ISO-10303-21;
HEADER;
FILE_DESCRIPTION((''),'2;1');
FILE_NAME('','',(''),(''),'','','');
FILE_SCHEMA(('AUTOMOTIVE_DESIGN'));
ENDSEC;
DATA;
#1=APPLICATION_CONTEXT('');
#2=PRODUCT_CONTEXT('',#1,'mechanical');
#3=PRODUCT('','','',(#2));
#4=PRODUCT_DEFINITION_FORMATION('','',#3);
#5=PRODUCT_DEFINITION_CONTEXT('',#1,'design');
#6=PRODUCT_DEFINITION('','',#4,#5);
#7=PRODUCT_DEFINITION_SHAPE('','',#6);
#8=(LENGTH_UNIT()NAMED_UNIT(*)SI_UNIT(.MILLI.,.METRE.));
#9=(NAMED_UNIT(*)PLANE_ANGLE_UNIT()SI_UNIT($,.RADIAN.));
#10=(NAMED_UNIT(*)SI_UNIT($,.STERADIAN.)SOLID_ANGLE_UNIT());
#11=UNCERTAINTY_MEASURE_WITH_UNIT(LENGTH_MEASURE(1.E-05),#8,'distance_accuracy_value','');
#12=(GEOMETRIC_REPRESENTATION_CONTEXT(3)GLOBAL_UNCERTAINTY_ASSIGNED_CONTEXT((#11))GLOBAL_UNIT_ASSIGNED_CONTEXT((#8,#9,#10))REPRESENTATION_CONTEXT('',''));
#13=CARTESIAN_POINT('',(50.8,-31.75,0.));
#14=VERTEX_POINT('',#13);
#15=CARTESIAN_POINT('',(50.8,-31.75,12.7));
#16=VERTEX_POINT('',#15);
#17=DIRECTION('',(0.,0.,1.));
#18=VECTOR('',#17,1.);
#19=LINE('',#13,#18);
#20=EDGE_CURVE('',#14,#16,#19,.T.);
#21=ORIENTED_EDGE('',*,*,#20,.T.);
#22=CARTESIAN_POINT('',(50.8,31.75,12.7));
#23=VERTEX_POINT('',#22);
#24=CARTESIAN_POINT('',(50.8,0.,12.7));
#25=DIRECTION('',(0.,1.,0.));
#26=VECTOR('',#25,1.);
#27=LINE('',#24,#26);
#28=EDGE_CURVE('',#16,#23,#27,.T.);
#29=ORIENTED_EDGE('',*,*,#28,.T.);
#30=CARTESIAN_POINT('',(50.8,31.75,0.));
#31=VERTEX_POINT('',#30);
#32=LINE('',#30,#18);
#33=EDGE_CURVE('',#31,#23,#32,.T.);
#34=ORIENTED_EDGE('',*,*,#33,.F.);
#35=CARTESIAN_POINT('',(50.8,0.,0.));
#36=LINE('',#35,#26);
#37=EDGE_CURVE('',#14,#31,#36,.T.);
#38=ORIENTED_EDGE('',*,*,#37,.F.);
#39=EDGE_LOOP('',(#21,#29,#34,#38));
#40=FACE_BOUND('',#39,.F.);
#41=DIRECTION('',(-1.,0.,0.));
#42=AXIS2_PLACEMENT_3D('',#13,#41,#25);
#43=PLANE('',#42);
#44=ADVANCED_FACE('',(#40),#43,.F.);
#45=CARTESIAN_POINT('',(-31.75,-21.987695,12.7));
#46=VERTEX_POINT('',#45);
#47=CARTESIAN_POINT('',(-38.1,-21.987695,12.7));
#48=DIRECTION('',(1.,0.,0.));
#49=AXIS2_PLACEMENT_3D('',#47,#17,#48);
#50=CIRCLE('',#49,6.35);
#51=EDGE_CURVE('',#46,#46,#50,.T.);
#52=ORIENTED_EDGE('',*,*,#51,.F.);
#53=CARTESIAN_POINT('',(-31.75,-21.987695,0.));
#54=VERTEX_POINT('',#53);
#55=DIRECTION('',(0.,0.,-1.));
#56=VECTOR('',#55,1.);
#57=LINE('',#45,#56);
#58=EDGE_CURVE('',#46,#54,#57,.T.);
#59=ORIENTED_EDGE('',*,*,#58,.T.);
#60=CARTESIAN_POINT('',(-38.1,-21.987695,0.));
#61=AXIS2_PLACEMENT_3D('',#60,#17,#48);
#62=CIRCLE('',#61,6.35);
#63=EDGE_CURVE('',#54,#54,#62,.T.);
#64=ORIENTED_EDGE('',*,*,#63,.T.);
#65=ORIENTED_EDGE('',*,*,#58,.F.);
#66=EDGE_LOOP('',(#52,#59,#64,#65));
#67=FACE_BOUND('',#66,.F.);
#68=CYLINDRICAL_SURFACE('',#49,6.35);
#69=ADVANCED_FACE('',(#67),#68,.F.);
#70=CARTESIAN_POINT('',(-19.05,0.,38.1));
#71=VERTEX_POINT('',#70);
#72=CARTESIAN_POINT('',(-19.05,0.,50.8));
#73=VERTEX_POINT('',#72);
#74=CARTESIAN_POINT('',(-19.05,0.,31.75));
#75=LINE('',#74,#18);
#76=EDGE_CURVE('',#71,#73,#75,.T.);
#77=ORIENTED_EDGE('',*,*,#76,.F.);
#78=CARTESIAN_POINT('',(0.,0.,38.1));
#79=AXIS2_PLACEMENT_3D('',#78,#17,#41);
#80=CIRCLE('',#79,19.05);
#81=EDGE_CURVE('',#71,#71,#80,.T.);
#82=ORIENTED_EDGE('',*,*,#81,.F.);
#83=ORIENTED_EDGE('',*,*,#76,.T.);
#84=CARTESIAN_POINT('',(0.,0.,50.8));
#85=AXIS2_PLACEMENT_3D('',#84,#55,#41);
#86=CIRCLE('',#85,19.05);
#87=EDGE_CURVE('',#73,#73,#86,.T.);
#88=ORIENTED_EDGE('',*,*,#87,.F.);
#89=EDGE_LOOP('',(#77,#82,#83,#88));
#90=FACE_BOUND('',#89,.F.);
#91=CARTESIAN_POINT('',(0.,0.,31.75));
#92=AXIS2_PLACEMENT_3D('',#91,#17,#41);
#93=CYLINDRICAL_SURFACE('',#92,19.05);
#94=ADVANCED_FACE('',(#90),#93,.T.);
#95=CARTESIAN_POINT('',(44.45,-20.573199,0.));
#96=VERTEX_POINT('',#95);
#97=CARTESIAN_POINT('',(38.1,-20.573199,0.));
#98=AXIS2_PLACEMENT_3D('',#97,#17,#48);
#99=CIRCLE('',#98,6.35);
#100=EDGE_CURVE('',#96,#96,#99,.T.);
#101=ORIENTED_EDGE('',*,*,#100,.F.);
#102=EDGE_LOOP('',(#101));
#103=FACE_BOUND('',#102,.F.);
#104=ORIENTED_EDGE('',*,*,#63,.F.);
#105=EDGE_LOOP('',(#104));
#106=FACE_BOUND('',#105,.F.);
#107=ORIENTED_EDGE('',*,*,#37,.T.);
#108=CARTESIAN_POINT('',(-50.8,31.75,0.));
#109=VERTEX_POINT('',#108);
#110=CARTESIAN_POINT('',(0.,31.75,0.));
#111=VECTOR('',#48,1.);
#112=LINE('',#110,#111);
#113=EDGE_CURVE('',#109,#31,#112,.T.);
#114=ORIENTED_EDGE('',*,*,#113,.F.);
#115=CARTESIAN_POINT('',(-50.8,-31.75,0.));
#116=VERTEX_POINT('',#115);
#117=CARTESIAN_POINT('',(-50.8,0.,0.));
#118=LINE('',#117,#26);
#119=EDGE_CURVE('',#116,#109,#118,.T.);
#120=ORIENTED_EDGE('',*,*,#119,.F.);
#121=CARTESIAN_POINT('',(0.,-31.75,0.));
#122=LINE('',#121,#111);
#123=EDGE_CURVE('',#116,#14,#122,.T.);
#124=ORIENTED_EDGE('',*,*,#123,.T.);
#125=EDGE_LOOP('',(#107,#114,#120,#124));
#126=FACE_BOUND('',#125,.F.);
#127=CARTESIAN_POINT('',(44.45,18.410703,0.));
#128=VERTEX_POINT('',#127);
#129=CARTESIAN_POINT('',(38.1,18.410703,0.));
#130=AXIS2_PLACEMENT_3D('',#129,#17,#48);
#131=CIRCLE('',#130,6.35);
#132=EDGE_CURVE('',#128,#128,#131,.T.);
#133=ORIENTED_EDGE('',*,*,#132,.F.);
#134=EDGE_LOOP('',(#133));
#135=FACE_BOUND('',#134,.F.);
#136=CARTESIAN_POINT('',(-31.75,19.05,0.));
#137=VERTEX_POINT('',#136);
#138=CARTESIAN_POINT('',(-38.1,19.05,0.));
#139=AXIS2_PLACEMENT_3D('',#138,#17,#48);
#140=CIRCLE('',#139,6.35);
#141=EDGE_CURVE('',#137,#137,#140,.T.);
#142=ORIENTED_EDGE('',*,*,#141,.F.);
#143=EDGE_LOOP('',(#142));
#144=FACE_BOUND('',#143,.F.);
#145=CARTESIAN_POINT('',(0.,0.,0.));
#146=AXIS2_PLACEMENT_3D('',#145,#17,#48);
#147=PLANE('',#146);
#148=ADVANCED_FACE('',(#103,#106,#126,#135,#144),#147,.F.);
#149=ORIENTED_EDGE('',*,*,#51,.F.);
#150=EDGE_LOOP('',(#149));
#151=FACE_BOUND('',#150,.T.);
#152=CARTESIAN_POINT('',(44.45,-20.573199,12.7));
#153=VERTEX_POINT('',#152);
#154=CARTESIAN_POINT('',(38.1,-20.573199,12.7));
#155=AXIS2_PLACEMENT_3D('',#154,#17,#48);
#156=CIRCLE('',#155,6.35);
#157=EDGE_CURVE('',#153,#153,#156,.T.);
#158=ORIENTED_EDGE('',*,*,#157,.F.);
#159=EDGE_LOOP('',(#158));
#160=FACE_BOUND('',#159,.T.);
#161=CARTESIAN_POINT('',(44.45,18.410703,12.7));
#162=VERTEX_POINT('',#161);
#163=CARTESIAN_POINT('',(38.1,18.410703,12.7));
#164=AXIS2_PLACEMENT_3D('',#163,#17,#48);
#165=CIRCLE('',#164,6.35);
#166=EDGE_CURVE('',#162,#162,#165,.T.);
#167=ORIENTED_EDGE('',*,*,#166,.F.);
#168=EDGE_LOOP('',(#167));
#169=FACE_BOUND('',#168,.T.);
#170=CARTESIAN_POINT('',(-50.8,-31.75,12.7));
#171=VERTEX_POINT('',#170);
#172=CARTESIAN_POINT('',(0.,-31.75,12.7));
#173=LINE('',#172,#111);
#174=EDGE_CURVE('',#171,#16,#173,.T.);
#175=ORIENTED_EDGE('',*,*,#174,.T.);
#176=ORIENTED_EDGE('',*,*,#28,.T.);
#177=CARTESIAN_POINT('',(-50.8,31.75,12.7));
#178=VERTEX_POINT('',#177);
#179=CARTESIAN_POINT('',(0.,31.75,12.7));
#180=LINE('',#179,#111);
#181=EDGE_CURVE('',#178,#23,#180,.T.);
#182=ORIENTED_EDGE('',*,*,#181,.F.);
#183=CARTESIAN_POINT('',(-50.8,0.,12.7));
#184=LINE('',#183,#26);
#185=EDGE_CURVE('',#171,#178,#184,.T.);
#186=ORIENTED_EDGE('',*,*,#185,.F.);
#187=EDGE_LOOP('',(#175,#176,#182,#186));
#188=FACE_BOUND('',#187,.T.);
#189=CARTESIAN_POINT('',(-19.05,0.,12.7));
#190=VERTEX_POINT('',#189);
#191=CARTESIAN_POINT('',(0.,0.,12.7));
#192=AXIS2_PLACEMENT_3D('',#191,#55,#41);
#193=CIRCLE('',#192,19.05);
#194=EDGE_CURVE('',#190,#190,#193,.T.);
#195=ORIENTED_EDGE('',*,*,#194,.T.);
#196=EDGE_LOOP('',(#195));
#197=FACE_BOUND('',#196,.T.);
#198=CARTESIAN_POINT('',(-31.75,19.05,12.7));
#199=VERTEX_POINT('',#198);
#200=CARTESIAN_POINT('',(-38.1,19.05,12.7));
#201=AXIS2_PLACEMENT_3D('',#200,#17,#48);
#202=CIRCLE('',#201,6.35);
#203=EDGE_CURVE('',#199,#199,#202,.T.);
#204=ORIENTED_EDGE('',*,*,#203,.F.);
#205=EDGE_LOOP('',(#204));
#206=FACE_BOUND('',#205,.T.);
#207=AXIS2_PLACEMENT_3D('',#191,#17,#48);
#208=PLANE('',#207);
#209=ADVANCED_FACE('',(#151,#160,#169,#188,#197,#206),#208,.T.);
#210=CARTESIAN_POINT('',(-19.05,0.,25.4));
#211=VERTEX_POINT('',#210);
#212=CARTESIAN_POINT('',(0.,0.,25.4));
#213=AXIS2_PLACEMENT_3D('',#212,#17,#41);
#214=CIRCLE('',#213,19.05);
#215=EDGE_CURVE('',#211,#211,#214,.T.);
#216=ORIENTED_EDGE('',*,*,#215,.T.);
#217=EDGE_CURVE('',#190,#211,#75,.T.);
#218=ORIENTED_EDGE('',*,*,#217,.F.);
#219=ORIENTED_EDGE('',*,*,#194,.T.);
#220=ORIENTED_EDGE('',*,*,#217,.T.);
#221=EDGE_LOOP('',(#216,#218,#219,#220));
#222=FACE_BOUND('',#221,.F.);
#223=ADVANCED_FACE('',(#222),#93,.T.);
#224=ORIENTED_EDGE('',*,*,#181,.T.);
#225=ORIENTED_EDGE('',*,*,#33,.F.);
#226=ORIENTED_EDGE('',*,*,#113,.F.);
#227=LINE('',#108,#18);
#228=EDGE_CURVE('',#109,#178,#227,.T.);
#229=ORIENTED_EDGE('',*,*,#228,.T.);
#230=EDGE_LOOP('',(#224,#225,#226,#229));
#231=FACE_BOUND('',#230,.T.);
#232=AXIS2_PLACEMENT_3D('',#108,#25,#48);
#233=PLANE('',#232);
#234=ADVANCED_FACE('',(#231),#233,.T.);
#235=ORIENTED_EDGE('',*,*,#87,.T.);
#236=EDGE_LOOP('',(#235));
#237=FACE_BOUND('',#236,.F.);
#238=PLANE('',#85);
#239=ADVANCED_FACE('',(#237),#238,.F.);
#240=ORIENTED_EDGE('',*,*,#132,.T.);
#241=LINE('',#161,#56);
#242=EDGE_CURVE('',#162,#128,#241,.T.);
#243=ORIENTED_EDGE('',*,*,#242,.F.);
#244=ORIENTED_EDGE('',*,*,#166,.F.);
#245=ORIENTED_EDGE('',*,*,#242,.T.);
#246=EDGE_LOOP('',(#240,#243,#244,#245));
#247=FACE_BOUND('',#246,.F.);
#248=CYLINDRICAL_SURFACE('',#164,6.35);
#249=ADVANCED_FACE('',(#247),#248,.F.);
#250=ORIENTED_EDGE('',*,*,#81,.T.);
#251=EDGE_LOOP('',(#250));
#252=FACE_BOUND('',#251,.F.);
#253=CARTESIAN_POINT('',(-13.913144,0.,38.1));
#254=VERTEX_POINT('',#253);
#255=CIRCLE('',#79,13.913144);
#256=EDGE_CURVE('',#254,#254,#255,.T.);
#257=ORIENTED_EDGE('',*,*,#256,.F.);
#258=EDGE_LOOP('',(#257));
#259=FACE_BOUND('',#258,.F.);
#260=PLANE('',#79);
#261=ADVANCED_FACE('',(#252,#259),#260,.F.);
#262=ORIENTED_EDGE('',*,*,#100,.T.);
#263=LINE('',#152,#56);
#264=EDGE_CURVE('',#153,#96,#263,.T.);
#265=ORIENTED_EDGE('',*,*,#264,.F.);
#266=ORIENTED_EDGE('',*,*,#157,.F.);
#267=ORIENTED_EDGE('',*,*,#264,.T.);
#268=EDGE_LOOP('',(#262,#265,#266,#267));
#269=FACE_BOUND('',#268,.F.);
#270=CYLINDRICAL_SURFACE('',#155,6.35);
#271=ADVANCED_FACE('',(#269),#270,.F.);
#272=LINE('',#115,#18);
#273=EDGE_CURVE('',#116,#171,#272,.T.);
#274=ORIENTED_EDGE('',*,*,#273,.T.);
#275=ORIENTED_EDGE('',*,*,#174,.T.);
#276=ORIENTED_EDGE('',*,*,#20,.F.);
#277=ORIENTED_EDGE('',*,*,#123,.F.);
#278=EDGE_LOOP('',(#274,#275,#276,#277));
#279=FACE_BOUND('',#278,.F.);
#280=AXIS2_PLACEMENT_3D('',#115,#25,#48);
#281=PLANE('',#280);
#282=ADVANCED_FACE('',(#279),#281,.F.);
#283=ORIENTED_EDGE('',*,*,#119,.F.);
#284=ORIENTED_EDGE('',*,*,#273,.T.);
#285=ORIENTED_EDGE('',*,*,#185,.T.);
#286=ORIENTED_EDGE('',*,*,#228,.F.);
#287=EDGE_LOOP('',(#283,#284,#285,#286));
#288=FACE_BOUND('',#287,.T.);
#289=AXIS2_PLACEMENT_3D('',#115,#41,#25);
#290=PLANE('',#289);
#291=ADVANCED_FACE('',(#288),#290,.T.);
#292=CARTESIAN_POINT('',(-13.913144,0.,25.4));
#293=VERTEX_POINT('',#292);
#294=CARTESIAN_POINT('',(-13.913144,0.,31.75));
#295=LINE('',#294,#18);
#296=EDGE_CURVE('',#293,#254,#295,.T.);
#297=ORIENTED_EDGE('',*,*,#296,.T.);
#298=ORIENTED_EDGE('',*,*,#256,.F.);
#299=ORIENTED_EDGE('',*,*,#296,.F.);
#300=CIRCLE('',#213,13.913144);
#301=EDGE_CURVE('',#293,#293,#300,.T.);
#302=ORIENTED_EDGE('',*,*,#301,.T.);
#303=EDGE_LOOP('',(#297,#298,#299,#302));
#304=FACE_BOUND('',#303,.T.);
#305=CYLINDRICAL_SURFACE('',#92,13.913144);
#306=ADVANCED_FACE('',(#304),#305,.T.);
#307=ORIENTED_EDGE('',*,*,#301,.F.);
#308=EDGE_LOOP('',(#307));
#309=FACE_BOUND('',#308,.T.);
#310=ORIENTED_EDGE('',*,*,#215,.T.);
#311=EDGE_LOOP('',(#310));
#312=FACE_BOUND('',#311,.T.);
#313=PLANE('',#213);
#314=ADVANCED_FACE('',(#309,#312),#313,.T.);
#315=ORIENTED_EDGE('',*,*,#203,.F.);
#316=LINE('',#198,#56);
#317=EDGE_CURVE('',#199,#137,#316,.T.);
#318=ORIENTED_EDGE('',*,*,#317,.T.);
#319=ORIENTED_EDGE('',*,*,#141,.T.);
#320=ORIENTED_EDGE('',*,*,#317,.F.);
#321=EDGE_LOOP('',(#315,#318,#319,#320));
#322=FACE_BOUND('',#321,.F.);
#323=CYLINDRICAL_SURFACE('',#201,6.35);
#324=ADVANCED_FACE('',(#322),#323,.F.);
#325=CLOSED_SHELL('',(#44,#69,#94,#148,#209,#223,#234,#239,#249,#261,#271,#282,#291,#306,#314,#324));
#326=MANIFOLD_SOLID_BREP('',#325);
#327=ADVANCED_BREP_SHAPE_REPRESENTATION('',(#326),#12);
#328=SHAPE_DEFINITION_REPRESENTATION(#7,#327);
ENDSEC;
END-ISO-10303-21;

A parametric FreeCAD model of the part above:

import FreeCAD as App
import Part
import Sketcher

V = App.Vector
Q = App.Units.Quantity

doc = App.newDocument("Part")
body = doc.addObject("PartDesign::Body", "Body")

sketch1 = body.newObject("Sketcher::SketchObject", "Sketch")
sketch1.AttachmentSupport = (doc.getObject("XY_Plane"), [""])
sketch1.MapMode = "FlatFace"
sketch1.addGeometry([
    Part.LineSegment(V(-51, 32, 0), V(-51, -32, 0)),
    Part.LineSegment(V(-51, -32, 0), V(51, -32, 0)),
    Part.LineSegment(V(51, -32, 0), V(51, 32, 0)),
    Part.LineSegment(V(51, 32, 0), V(-51, 32, 0)),
], False)
sketch1.addConstraint([
    Sketcher.Constraint("Coincident", 0, 2, 1, 1),
    Sketcher.Constraint("Coincident", 1, 2, 2, 1),
    Sketcher.Constraint("Coincident", 2, 2, 3, 1),
    Sketcher.Constraint("Coincident", 3, 2, 0, 1),
    Sketcher.Constraint("Vertical", 0),
    Sketcher.Constraint("Horizontal", 1),
    Sketcher.Constraint("Vertical", 2),
    Sketcher.Constraint("Horizontal", 3),
    Sketcher.Constraint("Symmetric", 0, 2, 2, 2, -1, 1),
    Sketcher.Constraint("DistanceX", 1, 1, 1, 2, Q("4 in")),
    Sketcher.Constraint("DistanceY", 0, 2, 0, 1, Q("2.5 in")),
])
pad1 = body.newObject("PartDesign::Pad", "Pad")
pad1.Profile = sketch1
pad1.Length = Q("0.5 in")

sketch2 = body.newObject("Sketcher::SketchObject", "Sketch001")
sketch2.AttachmentSupport = (doc.getObject("XY_Plane"), [""])
sketch2.MapMode = "FlatFace"
sketch2.AttachmentOffset = App.Placement(V(0, 0, 0.5 * 25.4), App.Rotation())
sketch2.addGeometry([
    Part.Circle(V(-38, 19, 0), V(0, 0, 1), 6),
    Part.Circle(V(-38, -22, 0), V(0, 0, 1), 6),
    Part.Circle(V(38, 18, 0), V(0, 0, 1), 6),
    Part.Circle(V(38, -21, 0), V(0, 0, 1), 6),
], False)
sketch2.addConstraint([
    Sketcher.Constraint("Equal", 0, 1),
    Sketcher.Constraint("Equal", 1, 2),
    Sketcher.Constraint("Equal", 2, 3),
    Sketcher.Constraint("Vertical", 0, 3, 1, 3),
    Sketcher.Constraint("Vertical", 2, 3, 3, 3),
    Sketcher.Constraint("Diameter", 0, Q("0.5 in")),
    Sketcher.Constraint("DistanceX", 0, 3, 2, 3, Q("3 in")),
    Sketcher.Constraint("DistanceX", 0, 3, -1, 1, Q("1.5 in")),
    Sketcher.Constraint("DistanceY", -1, 1, 0, 3, Q("0.75 in")),
    Sketcher.Constraint("DistanceY", 3, 3, -1, 1, 20.573199),
    Sketcher.Constraint("DistanceY", 1, 3, -1, 1, 21.987695),
    Sketcher.Constraint("DistanceY", -1, 1, 2, 3, 18.410703),
])
pocket1 = body.newObject("PartDesign::Pocket", "Pocket")
pocket1.Profile = sketch2
pocket1.Type = "ThroughAll"

sketch3 = body.newObject("Sketcher::SketchObject", "Sketch002")
sketch3.AttachmentSupport = (doc.getObject("XZ_Plane"), [""])
sketch3.MapMode = "FlatFace"
sketch3.addGeometry([
    Part.LineSegment(V(-19, 51, 0), V(-19, 13, 0)),
    Part.LineSegment(V(-19, 13, 0), V(0, 13, 0)),
    Part.LineSegment(V(0, 13, 0), V(0, 51, 0)),
    Part.LineSegment(V(0, 51, 0), V(-19, 51, 0)),
], False)
sketch3.addConstraint([
    Sketcher.Constraint("Coincident", 0, 2, 1, 1),
    Sketcher.Constraint("Coincident", 1, 2, 2, 1),
    Sketcher.Constraint("Coincident", 2, 2, 3, 1),
    Sketcher.Constraint("Coincident", 3, 2, 0, 1),
    Sketcher.Constraint("Vertical", 0),
    Sketcher.Constraint("Horizontal", 1),
    Sketcher.Constraint("Vertical", 2),
    Sketcher.Constraint("Horizontal", 3),
    Sketcher.Constraint("PointOnObject", 1, 2, -2),
    Sketcher.Constraint("DistanceY", 0, 2, 0, 1, Q("1.5 in")),
    Sketcher.Constraint("DistanceY", -1, 1, 2, 2, Q("2 in")),
    Sketcher.Constraint("DistanceX", 1, 1, 1, 2, Q("0.75 in")),
])
revolution = body.newObject("PartDesign::Revolution", "Revolution")
revolution.Profile = sketch3
revolution.ReferenceAxis = (sketch3, ["V_Axis"])
revolution.Angle = 360

sketch4 = body.newObject("Sketcher::SketchObject", "Sketch003")
sketch4.AttachmentSupport = (doc.getObject("XZ_Plane"), [""])
sketch4.MapMode = "FlatFace"
sketch4.addGeometry([
    Part.LineSegment(V(-26, 38, 0), V(-26, 25, 0)),
    Part.LineSegment(V(-26, 25, 0), V(-14, 25, 0)),
    Part.LineSegment(V(-14, 25, 0), V(-14, 38, 0)),
    Part.LineSegment(V(-14, 38, 0), V(-26, 38, 0)),
], False)
sketch4.addConstraint([
    Sketcher.Constraint("Coincident", 0, 2, 1, 1),
    Sketcher.Constraint("Coincident", 1, 2, 2, 1),
    Sketcher.Constraint("Coincident", 2, 2, 3, 1),
    Sketcher.Constraint("Coincident", 3, 2, 0, 1),
    Sketcher.Constraint("Vertical", 0),
    Sketcher.Constraint("Horizontal", 1),
    Sketcher.Constraint("Vertical", 2),
    Sketcher.Constraint("Horizontal", 3),
    Sketcher.Constraint("DistanceY", 0, 2, 0, 1, Q("0.5 in")),
    Sketcher.Constraint("DistanceY", -1, 1, 0, 2, Q("1 in")),
    Sketcher.Constraint("DistanceX", 1, 1, 1, 2, 11.628822),
    Sketcher.Constraint("DistanceX", 0, 2, -1, 1, 25.541966),
])
groove = body.newObject("PartDesign::Groove", "Groove")
groove.Profile = sketch4
groove.ReferenceAxis = (sketch4, ["V_Axis"])
groove.Angle = 360

doc.recompute()
